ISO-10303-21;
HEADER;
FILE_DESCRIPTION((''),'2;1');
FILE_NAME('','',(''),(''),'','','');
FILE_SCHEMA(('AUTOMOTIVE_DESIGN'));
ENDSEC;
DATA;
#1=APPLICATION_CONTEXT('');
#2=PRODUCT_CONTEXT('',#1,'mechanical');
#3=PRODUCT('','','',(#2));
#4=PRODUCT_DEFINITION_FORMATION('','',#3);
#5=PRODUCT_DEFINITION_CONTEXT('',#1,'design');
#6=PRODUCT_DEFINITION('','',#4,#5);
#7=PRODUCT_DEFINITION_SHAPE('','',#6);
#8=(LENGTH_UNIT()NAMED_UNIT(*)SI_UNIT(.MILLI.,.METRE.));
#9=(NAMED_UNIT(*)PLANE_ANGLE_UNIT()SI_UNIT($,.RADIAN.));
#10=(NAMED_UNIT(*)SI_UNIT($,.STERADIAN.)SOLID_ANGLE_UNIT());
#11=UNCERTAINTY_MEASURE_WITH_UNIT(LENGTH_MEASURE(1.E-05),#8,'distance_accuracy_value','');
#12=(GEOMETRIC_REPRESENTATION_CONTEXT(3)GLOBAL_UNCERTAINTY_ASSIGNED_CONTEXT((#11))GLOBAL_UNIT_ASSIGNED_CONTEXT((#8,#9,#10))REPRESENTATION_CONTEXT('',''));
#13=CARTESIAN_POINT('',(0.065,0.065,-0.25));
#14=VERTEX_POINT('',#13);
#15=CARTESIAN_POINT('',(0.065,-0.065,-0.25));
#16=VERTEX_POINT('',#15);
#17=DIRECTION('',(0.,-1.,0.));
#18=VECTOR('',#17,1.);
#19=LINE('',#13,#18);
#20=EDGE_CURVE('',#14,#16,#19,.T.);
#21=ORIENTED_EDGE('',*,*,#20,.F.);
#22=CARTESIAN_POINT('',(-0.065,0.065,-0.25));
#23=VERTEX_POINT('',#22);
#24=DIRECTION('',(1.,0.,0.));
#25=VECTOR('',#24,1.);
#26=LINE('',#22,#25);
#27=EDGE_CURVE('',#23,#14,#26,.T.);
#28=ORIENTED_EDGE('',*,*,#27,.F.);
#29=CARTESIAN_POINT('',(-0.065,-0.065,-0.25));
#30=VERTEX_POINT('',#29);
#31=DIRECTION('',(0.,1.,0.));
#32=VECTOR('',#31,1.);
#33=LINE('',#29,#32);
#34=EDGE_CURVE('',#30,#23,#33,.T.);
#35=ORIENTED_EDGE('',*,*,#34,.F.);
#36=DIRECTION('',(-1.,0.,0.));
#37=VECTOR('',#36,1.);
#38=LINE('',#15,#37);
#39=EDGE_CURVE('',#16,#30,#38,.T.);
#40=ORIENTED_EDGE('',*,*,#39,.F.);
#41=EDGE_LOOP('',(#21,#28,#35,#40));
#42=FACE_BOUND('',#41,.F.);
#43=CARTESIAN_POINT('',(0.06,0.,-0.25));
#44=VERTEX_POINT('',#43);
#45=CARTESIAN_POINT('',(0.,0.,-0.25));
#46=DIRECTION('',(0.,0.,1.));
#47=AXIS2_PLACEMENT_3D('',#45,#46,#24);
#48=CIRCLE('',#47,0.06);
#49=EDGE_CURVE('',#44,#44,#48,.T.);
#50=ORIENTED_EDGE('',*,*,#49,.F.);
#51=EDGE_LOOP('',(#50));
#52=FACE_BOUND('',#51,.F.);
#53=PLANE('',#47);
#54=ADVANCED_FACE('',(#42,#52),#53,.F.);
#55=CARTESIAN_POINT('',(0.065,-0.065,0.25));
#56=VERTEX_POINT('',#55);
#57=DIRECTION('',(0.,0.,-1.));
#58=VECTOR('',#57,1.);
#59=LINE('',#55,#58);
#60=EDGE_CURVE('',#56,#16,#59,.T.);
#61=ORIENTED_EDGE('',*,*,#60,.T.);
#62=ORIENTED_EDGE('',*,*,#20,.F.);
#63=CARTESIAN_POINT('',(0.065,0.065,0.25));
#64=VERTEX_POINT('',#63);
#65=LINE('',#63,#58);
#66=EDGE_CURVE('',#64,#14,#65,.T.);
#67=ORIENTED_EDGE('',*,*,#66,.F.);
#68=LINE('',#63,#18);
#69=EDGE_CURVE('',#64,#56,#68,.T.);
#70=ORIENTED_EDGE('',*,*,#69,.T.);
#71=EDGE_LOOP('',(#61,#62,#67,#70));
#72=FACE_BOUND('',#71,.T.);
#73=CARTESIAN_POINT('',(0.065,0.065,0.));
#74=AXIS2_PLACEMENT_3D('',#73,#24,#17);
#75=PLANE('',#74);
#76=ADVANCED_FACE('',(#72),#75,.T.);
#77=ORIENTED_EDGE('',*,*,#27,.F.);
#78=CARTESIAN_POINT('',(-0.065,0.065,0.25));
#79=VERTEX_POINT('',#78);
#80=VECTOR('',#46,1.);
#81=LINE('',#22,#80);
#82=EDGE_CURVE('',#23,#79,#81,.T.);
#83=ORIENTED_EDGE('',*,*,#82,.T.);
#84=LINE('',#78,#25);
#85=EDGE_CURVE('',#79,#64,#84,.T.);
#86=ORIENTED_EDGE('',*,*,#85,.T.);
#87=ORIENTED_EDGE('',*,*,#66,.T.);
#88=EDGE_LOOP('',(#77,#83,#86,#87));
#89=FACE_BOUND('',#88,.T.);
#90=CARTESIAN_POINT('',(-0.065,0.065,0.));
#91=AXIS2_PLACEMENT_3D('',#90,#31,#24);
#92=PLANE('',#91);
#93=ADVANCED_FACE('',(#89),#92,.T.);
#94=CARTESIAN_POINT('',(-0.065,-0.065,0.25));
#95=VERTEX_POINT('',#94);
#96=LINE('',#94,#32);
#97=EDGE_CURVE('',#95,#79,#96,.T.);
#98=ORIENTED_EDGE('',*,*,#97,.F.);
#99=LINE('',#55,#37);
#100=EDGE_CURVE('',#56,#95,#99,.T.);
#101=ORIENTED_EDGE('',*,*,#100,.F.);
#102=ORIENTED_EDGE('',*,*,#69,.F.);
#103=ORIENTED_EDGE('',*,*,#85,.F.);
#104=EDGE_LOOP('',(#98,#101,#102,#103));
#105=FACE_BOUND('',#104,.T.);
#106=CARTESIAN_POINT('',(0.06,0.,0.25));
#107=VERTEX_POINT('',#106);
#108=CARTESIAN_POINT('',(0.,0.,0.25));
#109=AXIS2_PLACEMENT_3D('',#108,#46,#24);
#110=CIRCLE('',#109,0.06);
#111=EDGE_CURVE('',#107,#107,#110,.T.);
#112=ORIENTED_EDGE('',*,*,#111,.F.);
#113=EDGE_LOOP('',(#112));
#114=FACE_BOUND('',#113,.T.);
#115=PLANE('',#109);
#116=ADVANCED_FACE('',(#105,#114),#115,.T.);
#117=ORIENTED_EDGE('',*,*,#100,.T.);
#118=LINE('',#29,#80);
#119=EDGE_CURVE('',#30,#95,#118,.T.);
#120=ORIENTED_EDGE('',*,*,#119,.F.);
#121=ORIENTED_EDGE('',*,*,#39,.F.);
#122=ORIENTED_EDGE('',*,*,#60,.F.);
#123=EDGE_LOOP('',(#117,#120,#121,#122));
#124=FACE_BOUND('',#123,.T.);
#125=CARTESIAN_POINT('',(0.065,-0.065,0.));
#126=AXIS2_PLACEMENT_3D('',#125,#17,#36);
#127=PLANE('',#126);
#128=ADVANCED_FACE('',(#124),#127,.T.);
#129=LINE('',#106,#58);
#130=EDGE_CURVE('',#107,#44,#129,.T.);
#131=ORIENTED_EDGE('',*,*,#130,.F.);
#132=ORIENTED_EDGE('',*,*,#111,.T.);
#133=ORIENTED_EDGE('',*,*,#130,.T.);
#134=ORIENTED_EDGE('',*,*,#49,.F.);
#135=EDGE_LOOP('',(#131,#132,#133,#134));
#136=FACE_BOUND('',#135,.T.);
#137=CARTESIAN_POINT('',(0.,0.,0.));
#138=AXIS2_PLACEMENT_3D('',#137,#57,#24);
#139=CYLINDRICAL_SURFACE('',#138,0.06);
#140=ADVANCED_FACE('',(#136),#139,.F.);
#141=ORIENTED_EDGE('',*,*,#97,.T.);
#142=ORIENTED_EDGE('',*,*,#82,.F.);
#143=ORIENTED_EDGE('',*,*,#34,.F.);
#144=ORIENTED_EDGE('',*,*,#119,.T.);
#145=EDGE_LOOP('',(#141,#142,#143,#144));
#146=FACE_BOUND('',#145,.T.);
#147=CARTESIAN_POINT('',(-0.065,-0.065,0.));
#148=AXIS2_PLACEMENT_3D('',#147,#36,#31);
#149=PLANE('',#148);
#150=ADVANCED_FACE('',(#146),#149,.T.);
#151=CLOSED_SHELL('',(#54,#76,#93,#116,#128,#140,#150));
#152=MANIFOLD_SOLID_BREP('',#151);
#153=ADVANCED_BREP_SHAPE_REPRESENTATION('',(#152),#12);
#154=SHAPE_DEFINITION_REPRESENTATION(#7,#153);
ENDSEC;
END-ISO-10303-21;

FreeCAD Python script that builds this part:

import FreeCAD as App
import Part
import Sketcher

doc = App.newDocument("Part")
body = doc.addObject("PartDesign::Body", "Body")

sketch1 = doc.addObject("Sketcher::SketchObject", "Sketch")
body.addObject(sketch1)
sketch1.AttachmentSupport = (doc.XY_Plane, [""])
sketch1.MapMode = "FlatFace"
sketch1.addGeometry(Part.LineSegment(App.Vector(0.07, 0.07, 0), App.Vector(-0.07, 0.07, 0)), False)
sketch1.addGeometry(Part.LineSegment(App.Vector(-0.07, 0.07, 0), App.Vector(-0.07, -0.07, 0)), False)
sketch1.addGeometry(Part.LineSegment(App.Vector(-0.07, -0.07, 0), App.Vector(0.07, -0.07, 0)), False)
sketch1.addGeometry(Part.LineSegment(App.Vector(0.07, -0.07, 0), App.Vector(0.07, 0.07, 0)), False)
sketch1.addGeometry(Part.Circle(App.Vector(0, 0, 0), App.Vector(0, 0, 1), 0.06), False)
sketch1.addConstraint(Sketcher.Constraint("Coincident", 0, 2, 1, 1))
sketch1.addConstraint(Sketcher.Constraint("Coincident", 1, 2, 2, 1))
sketch1.addConstraint(Sketcher.Constraint("Coincident", 2, 2, 3, 1))
sketch1.addConstraint(Sketcher.Constraint("Coincident", 3, 2, 0, 1))
sketch1.addConstraint(Sketcher.Constraint("Horizontal", 0))
sketch1.addConstraint(Sketcher.Constraint("Vertical", 1))
sketch1.addConstraint(Sketcher.Constraint("Horizontal", 2))
sketch1.addConstraint(Sketcher.Constraint("Vertical", 3))
sketch1.addConstraint(Sketcher.Constraint("Coincident", 4, 3, -1, 1))
sketch1.addConstraint(Sketcher.Constraint("Symmetric", 0, 2, 2, 2, -1, 1))
sketch1.addConstraint(Sketcher.Constraint("Equal", 2, 1))
sketch1.addConstraint(Sketcher.Constraint("Diameter", 4, 0.12))
sketch1.addConstraint(Sketcher.Constraint("DistanceX", 0, 2, 0, 1, 0.13))
pad1 = doc.addObject("PartDesign::Pad", "Pad")
body.addObject(pad1)
pad1.Profile = sketch1
pad1.Length = 0.5
pad1.Midplane = True

doc.recompute()
